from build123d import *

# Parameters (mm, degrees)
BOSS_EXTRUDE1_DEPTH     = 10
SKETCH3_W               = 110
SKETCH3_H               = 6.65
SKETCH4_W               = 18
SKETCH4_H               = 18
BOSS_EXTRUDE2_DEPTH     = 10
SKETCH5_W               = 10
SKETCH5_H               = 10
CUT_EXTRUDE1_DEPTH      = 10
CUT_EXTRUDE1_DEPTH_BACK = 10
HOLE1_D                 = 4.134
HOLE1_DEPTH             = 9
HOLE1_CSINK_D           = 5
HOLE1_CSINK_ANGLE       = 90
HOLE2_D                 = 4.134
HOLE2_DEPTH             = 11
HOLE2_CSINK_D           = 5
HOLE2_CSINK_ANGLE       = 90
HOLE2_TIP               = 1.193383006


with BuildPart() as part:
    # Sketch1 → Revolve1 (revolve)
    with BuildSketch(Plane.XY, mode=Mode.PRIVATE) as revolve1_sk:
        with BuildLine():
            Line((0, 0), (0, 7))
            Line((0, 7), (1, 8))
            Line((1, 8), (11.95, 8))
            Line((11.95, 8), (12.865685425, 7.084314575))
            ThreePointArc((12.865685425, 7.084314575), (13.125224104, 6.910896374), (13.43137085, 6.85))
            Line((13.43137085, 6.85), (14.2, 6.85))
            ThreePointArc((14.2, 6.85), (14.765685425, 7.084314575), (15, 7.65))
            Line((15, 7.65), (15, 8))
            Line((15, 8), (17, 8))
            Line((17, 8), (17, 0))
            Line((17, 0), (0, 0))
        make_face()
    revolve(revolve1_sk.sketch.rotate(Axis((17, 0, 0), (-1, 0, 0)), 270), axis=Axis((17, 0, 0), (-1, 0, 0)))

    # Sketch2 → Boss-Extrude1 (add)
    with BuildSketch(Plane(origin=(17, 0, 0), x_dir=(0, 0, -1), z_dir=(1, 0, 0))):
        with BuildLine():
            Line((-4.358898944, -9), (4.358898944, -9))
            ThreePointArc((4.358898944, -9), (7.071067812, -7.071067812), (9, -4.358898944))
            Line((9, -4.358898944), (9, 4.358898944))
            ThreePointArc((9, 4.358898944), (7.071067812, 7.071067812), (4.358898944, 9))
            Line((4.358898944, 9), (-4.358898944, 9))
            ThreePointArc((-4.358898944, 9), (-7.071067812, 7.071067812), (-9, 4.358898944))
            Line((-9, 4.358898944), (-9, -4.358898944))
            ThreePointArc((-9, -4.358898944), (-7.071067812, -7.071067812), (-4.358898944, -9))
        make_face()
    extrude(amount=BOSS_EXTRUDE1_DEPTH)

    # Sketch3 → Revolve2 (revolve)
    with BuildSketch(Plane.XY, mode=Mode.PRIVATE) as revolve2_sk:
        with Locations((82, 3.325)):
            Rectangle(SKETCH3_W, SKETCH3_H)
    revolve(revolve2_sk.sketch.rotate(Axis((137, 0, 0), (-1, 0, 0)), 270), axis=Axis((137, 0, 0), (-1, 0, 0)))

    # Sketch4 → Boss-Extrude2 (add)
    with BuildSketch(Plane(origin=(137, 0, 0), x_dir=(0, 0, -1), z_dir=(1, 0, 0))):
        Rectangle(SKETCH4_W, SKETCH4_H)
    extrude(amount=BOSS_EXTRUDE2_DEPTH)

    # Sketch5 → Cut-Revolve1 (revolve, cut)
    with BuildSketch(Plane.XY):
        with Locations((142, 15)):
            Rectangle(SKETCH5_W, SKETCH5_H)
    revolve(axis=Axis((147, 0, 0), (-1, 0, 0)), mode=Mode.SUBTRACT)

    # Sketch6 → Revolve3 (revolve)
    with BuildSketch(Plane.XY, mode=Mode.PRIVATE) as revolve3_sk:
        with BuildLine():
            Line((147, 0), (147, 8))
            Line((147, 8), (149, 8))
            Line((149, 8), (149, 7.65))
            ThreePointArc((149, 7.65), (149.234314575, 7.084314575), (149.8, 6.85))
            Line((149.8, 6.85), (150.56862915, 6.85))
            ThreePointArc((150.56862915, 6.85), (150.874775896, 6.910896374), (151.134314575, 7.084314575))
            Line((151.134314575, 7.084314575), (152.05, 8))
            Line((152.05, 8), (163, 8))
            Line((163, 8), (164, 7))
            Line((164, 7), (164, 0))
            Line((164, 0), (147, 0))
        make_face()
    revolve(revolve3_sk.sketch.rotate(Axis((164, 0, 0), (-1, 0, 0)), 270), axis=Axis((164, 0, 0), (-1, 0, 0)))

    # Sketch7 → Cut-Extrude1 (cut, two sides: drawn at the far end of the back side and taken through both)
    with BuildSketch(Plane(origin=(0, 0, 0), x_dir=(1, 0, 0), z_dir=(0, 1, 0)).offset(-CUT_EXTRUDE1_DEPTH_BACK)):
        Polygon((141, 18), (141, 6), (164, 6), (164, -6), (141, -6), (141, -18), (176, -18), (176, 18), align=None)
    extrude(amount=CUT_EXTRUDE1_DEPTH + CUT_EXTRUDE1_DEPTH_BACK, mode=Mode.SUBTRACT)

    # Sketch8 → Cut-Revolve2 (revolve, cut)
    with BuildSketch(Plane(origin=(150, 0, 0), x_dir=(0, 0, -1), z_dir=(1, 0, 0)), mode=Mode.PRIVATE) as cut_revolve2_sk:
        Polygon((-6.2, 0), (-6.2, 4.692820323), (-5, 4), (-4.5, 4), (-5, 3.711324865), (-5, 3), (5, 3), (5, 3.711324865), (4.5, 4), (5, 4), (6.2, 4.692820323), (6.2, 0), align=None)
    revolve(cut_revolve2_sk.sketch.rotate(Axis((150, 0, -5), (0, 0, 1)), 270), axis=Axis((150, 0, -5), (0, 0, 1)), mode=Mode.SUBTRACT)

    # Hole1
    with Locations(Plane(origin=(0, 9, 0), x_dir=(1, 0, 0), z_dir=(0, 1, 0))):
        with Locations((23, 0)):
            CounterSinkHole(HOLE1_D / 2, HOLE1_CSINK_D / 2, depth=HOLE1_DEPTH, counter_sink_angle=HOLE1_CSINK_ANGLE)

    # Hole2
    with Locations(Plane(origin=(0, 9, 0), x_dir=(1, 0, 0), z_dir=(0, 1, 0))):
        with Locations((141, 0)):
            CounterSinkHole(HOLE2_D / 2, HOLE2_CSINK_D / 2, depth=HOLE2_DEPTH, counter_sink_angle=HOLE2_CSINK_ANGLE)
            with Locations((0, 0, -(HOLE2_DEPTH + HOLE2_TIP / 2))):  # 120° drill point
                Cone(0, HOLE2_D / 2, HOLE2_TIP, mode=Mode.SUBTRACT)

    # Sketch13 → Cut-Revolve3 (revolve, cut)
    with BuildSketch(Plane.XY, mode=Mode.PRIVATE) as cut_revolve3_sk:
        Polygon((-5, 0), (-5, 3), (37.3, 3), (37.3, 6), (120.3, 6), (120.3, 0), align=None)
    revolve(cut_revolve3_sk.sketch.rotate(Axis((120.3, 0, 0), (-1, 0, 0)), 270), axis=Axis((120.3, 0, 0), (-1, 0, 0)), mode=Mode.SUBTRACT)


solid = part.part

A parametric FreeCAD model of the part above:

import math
import FreeCAD as App
import Part
import Sketcher
from FreeCAD import Vector
Q = App.Units.Quantity

doc = App.newDocument("Part")
body = doc.addObject("PartDesign::Body", "Body")

# Sketch on XY plane
sketch1 = body.newObject("Sketcher::SketchObject", "Sketch")
sketch1.AttachmentSupport = (doc.getObject("XY_Plane"), [""])
sketch1.MapMode = "FlatFace"
sketch1.addGeometry([
    Part.LineSegment(Vector(0, 7, 0), Vector(0, 0, 0)),  # 0
    Part.LineSegment(Vector(0, 0, 0), Vector(17, 0, 0)),  # 1
    Part.LineSegment(Vector(17, 0, 0), Vector(17, 8, 0)),  # 2
    Part.LineSegment(Vector(17, 8, 0), Vector(15, 8, 0)),  # 3
    Part.LineSegment(Vector(15, 8, 0), Vector(15, 7.65, 0)),  # 4
    Part.ArcOfCircle(Part.Circle(Vector(14.2, 7.65, 0), Vector(0, 0, 1), 0.8), math.radians(-90), math.radians(0)),  # 5
    Part.LineSegment(Vector(14.2, 6.85, 0), Vector(13.431371, 6.85, 0)),  # 6
    Part.ArcOfCircle(Part.Circle(Vector(13.431371, 7.65, 0), Vector(0, 0, 1), 0.8), math.radians(-135), math.radians(-90)),  # 7
    Part.LineSegment(Vector(12.865685, 7.084315, 0), Vector(11.95, 8, 0)),  # 8
    Part.LineSegment(Vector(11.95, 8, 0), Vector(1, 8, 0)),  # 9
    Part.LineSegment(Vector(1, 8, 0), Vector(0, 7, 0)),  # 10
], False)
sketch1.addConstraint([
    Sketcher.Constraint("Coincident", 0, 2, 1, 1),
    Sketcher.Constraint("Coincident", 1, 2, 2, 1),
    Sketcher.Constraint("Coincident", 2, 2, 3, 1),
    Sketcher.Constraint("Coincident", 3, 2, 4, 1),
    Sketcher.Constraint("Tangent", 4, 2, 5, 2),
    Sketcher.Constraint("Tangent", 5, 1, 6, 1),
    Sketcher.Constraint("Tangent", 6, 2, 7, 2),
    Sketcher.Constraint("Tangent", 7, 1, 8, 1),
    Sketcher.Constraint("Coincident", 8, 2, 9, 1),
    Sketcher.Constraint("Coincident", 9, 2, 10, 1),
    Sketcher.Constraint("Coincident", 10, 2, 0, 1),
    Sketcher.Constraint("Vertical", 0),
    Sketcher.Constraint("Horizontal", 1),
    Sketcher.Constraint("Vertical", 2),
    Sketcher.Constraint("Horizontal", 3),
    Sketcher.Constraint("Vertical", 4),
    Sketcher.Constraint("Horizontal", 6),
    Sketcher.Constraint("Horizontal", 9),
    Sketcher.Constraint("Coincident", 0, 2, -1, 1),
    Sketcher.Constraint("Equal", 5, 7),
    Sketcher.Constraint("Perpendicular", 8, 10),
    Sketcher.Constraint("Horizontal", 3, 2, 8, 2),
    Sketcher.Constraint("Radius", 5, 0.8),
    Sketcher.Constraint("DistanceX", 1, 1, 1, 2, 17.0),
    Sketcher.Constraint("DistanceX", 3, 2, 3, 1, 2.0),
    Sketcher.Constraint("DistanceY", 0, 2, 0, 1, 7.0),
    Sketcher.Constraint("DistanceY", 2, 1, 2, 2, 8.0),
    Sketcher.Constraint("Angle", 8, Q("135 deg")),
    Sketcher.Constraint("DistanceX", 9, 2, 9, 1, 10.95),
    Sketcher.Constraint("DistanceY", 4, 2, 4, 1, 0.35),
])
revolution = body.newObject("PartDesign::Revolution", "Revolution")
revolution.Profile = sketch1
revolution.ReferenceAxis = (sketch1, ["H_Axis"])
revolution.Angle = 360

# Sketch on YZ plane
sketch2 = body.newObject("Sketcher::SketchObject", "Sketch001")
sketch2.AttachmentSupport = (doc.getObject("YZ_Plane"), [""])
sketch2.MapMode = "FlatFace"
sketch2.AttachmentOffset = App.Placement(Vector(0, 0, 17), App.Rotation())
sketch2.addGeometry([
    Part.LineSegment(Vector(-9, 4.358899, 0), Vector(-9, -4.358899, 0)),  # 0
    Part.ArcOfCircle(Part.Circle(Vector(0, 0, 0), Vector(0, 0, 1), 10), math.radians(-154.158067), math.radians(-115.841933)),  # 1
    Part.LineSegment(Vector(-4.358899, -9, 0), Vector(4.358899, -9, 0)),  # 2
    Part.ArcOfCircle(Part.Circle(Vector(0, 0, 0), Vector(0, 0, 1), 10), math.radians(-64.158067), math.radians(-25.841933)),  # 3
    Part.LineSegment(Vector(9, -4.358899, 0), Vector(9, 4.358899, 0)),  # 4
    Part.ArcOfCircle(Part.Circle(Vector(0, 0, 0), Vector(0, 0, 1), 10), math.radians(25.841933), math.radians(64.158067)),  # 5
    Part.LineSegment(Vector(4.358899, 9, 0), Vector(-4.358899, 9, 0)),  # 6
    Part.ArcOfCircle(Part.Circle(Vector(0, 0, 0), Vector(0, 0, 1), 10), math.radians(115.841933), math.radians(154.158067)),  # 7
], False)
sketch2.addConstraint([
    Sketcher.Constraint("Coincident", 0, 2, 1, 1),
    Sketcher.Constraint("Coincident", 1, 2, 2, 1),
    Sketcher.Constraint("Coincident", 2, 2, 3, 1),
    Sketcher.Constraint("Coincident", 3, 2, 4, 1),
    Sketcher.Constraint("Coincident", 4, 2, 5, 1),
    Sketcher.Constraint("Coincident", 5, 2, 6, 1),
    Sketcher.Constraint("Coincident", 6, 2, 7, 1),
    Sketcher.Constraint("Coincident", 7, 2, 0, 1),
    Sketcher.Constraint("Vertical", 0),
    Sketcher.Constraint("Horizontal", 2),
    Sketcher.Constraint("Vertical", 4),
    Sketcher.Constraint("Horizontal", 6),
    Sketcher.Constraint("Coincident", 1, 3, -1, 1),
    Sketcher.Constraint("Coincident", 3, 3, -1, 1),
    Sketcher.Constraint("Coincident", 5, 3, -1, 1),
    Sketcher.Constraint("Coincident", 7, 3, -1, 1),
    Sketcher.Constraint("Equal", 1, 3),
    Sketcher.Constraint("Equal", 3, 5),
    Sketcher.Constraint("Equal", 5, 7),
    Sketcher.Constraint("Horizontal", 0, 2, 3, 2),
    Sketcher.Constraint("Vertical", 2, 2, 5, 2),
    Sketcher.Constraint("Equal", 6, 0),
    Sketcher.Constraint("Radius", 1, 10.0),
    Sketcher.Constraint("DistanceX", 0, 2, -1, 1, 9.0),
])
pad1 = body.newObject("PartDesign::Pad", "Pad")
pad1.Profile = sketch2
pad1.Length = 10

# Sketch on XY plane
sketch3 = body.newObject("Sketcher::SketchObject", "Sketch002")
sketch3.AttachmentSupport = (doc.getObject("XY_Plane"), [""])
sketch3.MapMode = "FlatFace"
sketch3.addGeometry([
    Part.LineSegment(Vector(27, 6.65, 0), Vector(27, 0, 0)),
    Part.LineSegment(Vector(27, 0, 0), Vector(137, 0, 0)),
    Part.LineSegment(Vector(137, 0, 0), Vector(137, 6.65, 0)),
    Part.LineSegment(Vector(137, 6.65, 0), Vector(27, 6.65, 0)),
], False)
sketch3.addConstraint([
    Sketcher.Constraint("Coincident", 0, 2, 1, 1),
    Sketcher.Constraint("Coincident", 1, 2, 2, 1),
    Sketcher.Constraint("Coincident", 2, 2, 3, 1),
    Sketcher.Constraint("Coincident", 3, 2, 0, 1),
    Sketcher.Constraint("Vertical", 0),
    Sketcher.Constraint("Horizontal", 1),
    Sketcher.Constraint("Vertical", 2),
    Sketcher.Constraint("Horizontal", 3),
    Sketcher.Constraint("PointOnObject", 0, 2, -1),
    Sketcher.Constraint("DistanceX", 1, 1, 1, 2, 110.0),
    Sketcher.Constraint("DistanceX", -1, 1, 0, 2, 27.0),
    Sketcher.Constraint("DistanceY", 0, 2, 0, 1, 6.65),
])
revolution2 = body.newObject("PartDesign::Revolution", "Revolution001")
revolution2.Profile = sketch3
revolution2.ReferenceAxis = (sketch3, ["H_Axis"])
revolution2.Angle = 360

# Sketch on YZ plane
sketch4 = body.newObject("Sketcher::SketchObject", "Sketch003")
sketch4.AttachmentSupport = (doc.getObject("YZ_Plane"), [""])
sketch4.MapMode = "FlatFace"
sketch4.AttachmentOffset = App.Placement(Vector(0, 0, 137), App.Rotation())
sketch4.addGeometry([
    Part.LineSegment(Vector(9, 9, 0), Vector(-9, 9, 0)),
    Part.LineSegment(Vector(-9, 9, 0), Vector(-9, -9, 0)),
    Part.LineSegment(Vector(-9, -9, 0), Vector(9, -9, 0)),
    Part.LineSegment(Vector(9, -9, 0), Vector(9, 9, 0)),
], False)
sketch4.addConstraint([
    Sketcher.Constraint("Coincident", 0, 2, 1, 1),
    Sketcher.Constraint("Coincident", 1, 2, 2, 1),
    Sketcher.Constraint("Coincident", 2, 2, 3, 1),
    Sketcher.Constraint("Coincident", 3, 2, 0, 1),
    Sketcher.Constraint("Horizontal", 0),
    Sketcher.Constraint("Vertical", 1),
    Sketcher.Constraint("Horizontal", 2),
    Sketcher.Constraint("Vertical", 3),
    Sketcher.Constraint("Symmetric", 0, 2, 2, 2, -1, 1),
    Sketcher.Constraint("Equal", 2, 1),
    Sketcher.Constraint("DistanceX", 0, 2, 0, 1, 18.0),
])
pad2 = body.newObject("PartDesign::Pad", "Pad001")
pad2.Profile = sketch4
pad2.Length = 10

# Sketch on XY plane
sketch5 = body.newObject("Sketcher::SketchObject", "Sketch004")
sketch5.AttachmentSupport = (doc.getObject("XY_Plane"), [""])
sketch5.MapMode = "FlatFace"
sketch5.addGeometry([
    Part.LineSegment(Vector(137, 20, 0), Vector(137, 10, 0)),
    Part.LineSegment(Vector(137, 10, 0), Vector(147, 10, 0)),
    Part.LineSegment(Vector(147, 10, 0), Vector(147, 20, 0)),
    Part.LineSegment(Vector(147, 20, 0), Vector(137, 20, 0)),
], False)
sketch5.addConstraint([
    Sketcher.Constraint("Coincident", 0, 2, 1, 1),
    Sketcher.Constraint("Coincident", 1, 2, 2, 1),
    Sketcher.Constraint("Coincident", 2, 2, 3, 1),
    Sketcher.Constraint("Coincident", 3, 2, 0, 1),
    Sketcher.Constraint("Vertical", 0),
    Sketcher.Constraint("Horizontal", 1),
    Sketcher.Constraint("Vertical", 2),
    Sketcher.Constraint("Horizontal", 3),
    Sketcher.Constraint("Equal", 3, 0),
    Sketcher.Constraint("DistanceX", 1, 1, 1, 2, 10.0),
    Sketcher.Constraint("DistanceX", -1, 1, 0, 2, 137.0),
    Sketcher.Constraint("DistanceY", -1, 1, 0, 2, 10.0),
])
groove = body.newObject("PartDesign::Groove", "Groove")
groove.Profile = sketch5
groove.ReferenceAxis = (sketch5, ["H_Axis"])
groove.Angle = 360

# Sketch on XY plane
sketch6 = body.newObject("Sketcher::SketchObject", "Sketch005")
sketch6.AttachmentSupport = (doc.getObject("XY_Plane"), [""])
sketch6.MapMode = "FlatFace"
sketch6.addGeometry([
    Part.LineSegment(Vector(147, 8, 0), Vector(147, 0, 0)),  # 0
    Part.LineSegment(Vector(147, 0, 0), Vector(164, 0, 0)),  # 1
    Part.LineSegment(Vector(164, 0, 0), Vector(164, 7, 0)),  # 2
    Part.LineSegment(Vector(164, 7, 0), Vector(163, 8, 0)),  # 3
    Part.LineSegment(Vector(163, 8, 0), Vector(152.05, 8, 0)),  # 4
    Part.LineSegment(Vector(152.05, 8, 0), Vector(151.134315, 7.084315, 0)),  # 5
    Part.ArcOfCircle(Part.Circle(Vector(150.568629, 7.65, 0), Vector(0, 0, 1), 0.8), math.radians(-90), math.radians(-45)),  # 6
    Part.LineSegment(Vector(150.568629, 6.85, 0), Vector(149.8, 6.85, 0)),  # 7
    Part.ArcOfCircle(Part.Circle(Vector(149.8, 7.65, 0), Vector(0, 0, 1), 0.8), math.radians(180), math.radians(270)),  # 8
    Part.LineSegment(Vector(149, 7.65, 0), Vector(149, 8, 0)),  # 9
    Part.LineSegment(Vector(149, 8, 0), Vector(147, 8, 0)),  # 10
], False)
sketch6.addConstraint([
    Sketcher.Constraint("Coincident", 0, 2, 1, 1),
    Sketcher.Constraint("Coincident", 1, 2, 2, 1),
    Sketcher.Constraint("Coincident", 2, 2, 3, 1),
    Sketcher.Constraint("Coincident", 3, 2, 4, 1),
    Sketcher.Constraint("Coincident", 4, 2, 5, 1),
    Sketcher.Constraint("Tangent", 5, 2, 6, 2),
    Sketcher.Constraint("Tangent", 6, 1, 7, 1),
    Sketcher.Constraint("Tangent", 7, 2, 8, 2),
    Sketcher.Constraint("Tangent", 8, 1, 9, 1),
    Sketcher.Constraint("Coincident", 9, 2, 10, 1),
    Sketcher.Constraint("Coincident", 10, 2, 0, 1),
    Sketcher.Constraint("Vertical", 0),
    Sketcher.Constraint("Horizontal", 1),
    Sketcher.Constraint("Vertical", 2),
    Sketcher.Constraint("Horizontal", 4),
    Sketcher.Constraint("Horizontal", 7),
    Sketcher.Constraint("Vertical", 9),
    Sketcher.Constraint("Horizontal", 10),
    Sketcher.Constraint("Equal", 6, 8),
    Sketcher.Constraint("PointOnObject", 0, 2, -1),
    Sketcher.Constraint("Perpendicular", 3, 5),
    Sketcher.Constraint("Horizontal", 4, 2, 9, 2),
    Sketcher.Constraint("Radius", 6, 0.8),
    Sketcher.Constraint("DistanceX", 1, 1, 1, 2, 17.0),
    Sketcher.Constraint("DistanceX", 10, 2, 10, 1, 2.0),
    Sketcher.Constraint("DistanceY", 0, 2, 0, 1, 8.0),
    Sketcher.Constraint("DistanceY", 2, 1, 2, 2, 7.0),
    Sketcher.Constraint("Angle", 3, Q("135 deg")),
    Sketcher.Constraint("DistanceX", -1, 1, 0, 2, 147.0),
    Sketcher.Constraint("DistanceX", 4, 2, 4, 1, 10.95),
    Sketcher.Constraint("DistanceY", 9, 1, 9, 2, 0.35),
])
revolution3 = body.newObject("PartDesign::Revolution", "Revolution002")
revolution3.Profile = sketch6
revolution3.ReferenceAxis = (sketch6, ["H_Axis"])
revolution3.Angle = 360

# Sketch on XZ plane
sketch7 = body.newObject("Sketcher::SketchObject", "Sketch006")
sketch7.AttachmentSupport = (doc.getObject("XZ_Plane"), [""])
sketch7.MapMode = "FlatFace"
sketch7.addGeometry([
    Part.LineSegment(Vector(141, -18, 0), Vector(141, -6, 0)),  # 0
    Part.LineSegment(Vector(141, -6, 0), Vector(164, -6, 0)),  # 1
    Part.LineSegment(Vector(164, -6, 0), Vector(164, 6, 0)),  # 2
    Part.LineSegment(Vector(164, 6, 0), Vector(141, 6, 0)),  # 3
    Part.LineSegment(Vector(141, 6, 0), Vector(141, 18, 0)),  # 4
    Part.LineSegment(Vector(141, 18, 0), Vector(176, 18, 0)),  # 5
    Part.LineSegment(Vector(176, 18, 0), Vector(176, -18, 0)),  # 6
    Part.LineSegment(Vector(176, -18, 0), Vector(141, -18, 0)),  # 7
], False)
sketch7.addConstraint([
    Sketcher.Constraint("Coincident", 0, 2, 1, 1),
    Sketcher.Constraint("Coincident", 1, 2, 2, 1),
    Sketcher.Constraint("Coincident", 2, 2, 3, 1),
    Sketcher.Constraint("Coincident", 3, 2, 4, 1),
    Sketcher.Constraint("Coincident", 4, 2, 5, 1),
    Sketcher.Constraint("Coincident", 5, 2, 6, 1),
    Sketcher.Constraint("Coincident", 6, 2, 7, 1),
    Sketcher.Constraint("Coincident", 7, 2, 0, 1),
    Sketcher.Constraint("Vertical", 0),
    Sketcher.Constraint("Horizontal", 1),
    Sketcher.Constraint("Vertical", 2),
    Sketcher.Constraint("Horizontal", 3),
    Sketcher.Constraint("Vertical", 4),
    Sketcher.Constraint("Horizontal", 5),
    Sketcher.Constraint("Vertical", 6),
    Sketcher.Constraint("Horizontal", 7),
    Sketcher.Constraint("Symmetric", 0, 2, 3, 2, -1),
    Sketcher.Constraint("Equal", 0, 2),
    Sketcher.Constraint("Equal", 2, 4),
    Sketcher.Constraint("DistanceX", 1, 1, 1, 2, 23.0),
    Sketcher.Constraint("DistanceX", 5, 1, 5, 2, 35.0),
    Sketcher.Constraint("DistanceY", 0, 1, 0, 2, 12.0),
    Sketcher.Constraint("DistanceX", -1, 1, 0, 2, 141.0),
])
pocket1 = body.newObject("PartDesign::Pocket", "Pocket")
pocket1.Profile = sketch7
pocket1.Type = "ThroughAll"
pocket1.Midplane = True

# Sketch on YZ plane
sketch8 = body.newObject("Sketcher::SketchObject", "Sketch007")
sketch8.AttachmentSupport = (doc.getObject("YZ_Plane"), [""])
sketch8.MapMode = "FlatFace"
sketch8.AttachmentOffset = App.Placement(Vector(0, 0, 150), App.Rotation())
sketch8.addGeometry([
    Part.LineSegment(Vector(4.69282, 6.2, 0), Vector(0, 6.2, 0)),  # 0
    Part.LineSegment(Vector(0, 6.2, 0), Vector(0, -6.2, 0)),  # 1
    Part.LineSegment(Vector(0, -6.2, 0), Vector(4.69282, -6.2, 0)),  # 2
    Part.LineSegment(Vector(4.69282, -6.2, 0), Vector(4, -5, 0)),  # 3
    Part.LineSegment(Vector(4, -5, 0), Vector(4, -4.5, 0)),  # 4
    Part.LineSegment(Vector(4, -4.5, 0), Vector(3.711325, -5, 0)),  # 5
    Part.LineSegment(Vector(3.711325, -5, 0), Vector(3, -5, 0)),  # 6
    Part.LineSegment(Vector(3, -5, 0), Vector(3, 5, 0)),  # 7
    Part.LineSegment(Vector(3, 5, 0), Vector(3.711325, 5, 0)),  # 8
    Part.LineSegment(Vector(3.711325, 5, 0), Vector(4, 4.5, 0)),  # 9
    Part.LineSegment(Vector(4, 4.5, 0), Vector(4, 5, 0)),  # 10
    Part.LineSegment(Vector(4, 5, 0), Vector(4.69282, 6.2, 0)),  # 11
], False)
sketch8.addConstraint([
    Sketcher.Constraint("Coincident", 0, 2, 1, 1),
    Sketcher.Constraint("Coincident", 1, 2, 2, 1),
    Sketcher.Constraint("Coincident", 2, 2, 3, 1),
    Sketcher.Constraint("Coincident", 3, 2, 4, 1),
    Sketcher.Constraint("Coincident", 4, 2, 5, 1),
    Sketcher.Constraint("Coincident", 5, 2, 6, 1),
    Sketcher.Constraint("Coincident", 6, 2, 7, 1),
    Sketcher.Constraint("Coincident", 7, 2, 8, 1),
    Sketcher.Constraint("Coincident", 8, 2, 9, 1),
    Sketcher.Constraint("Coincident", 9, 2, 10, 1),
    Sketcher.Constraint("Coincident", 10, 2, 11, 1),
    Sketcher.Constraint("Coincident", 11, 2, 0, 1),
    Sketcher.Constraint("Horizontal", 0),
    Sketcher.Constraint("Vertical", 1),
    Sketcher.Constraint("Horizontal", 2),
    Sketcher.Constraint("Vertical", 4),
    Sketcher.Constraint("Horizontal", 6),
    Sketcher.Constraint("Vertical", 7),
    Sketcher.Constraint("Horizontal", 8),
    Sketcher.Constraint("Vertical", 10),
    Sketcher.Constraint("Symmetric", 0, 2, 1, 2, -1, 1),
    Sketcher.Constraint("Symmetric", 5, 2, 8, 2, -1),
    Sketcher.Constraint("Symmetric", 4, 2, 9, 2, -1),
    Sketcher.Constraint("Parallel", 3, 9),
    Sketcher.Constraint("Parallel", 5, 11),
    Sketcher.Constraint("Horizontal", 3, 2, 5, 2),
    Sketcher.Constraint("Horizontal", 8, 2, 10, 2),
    Sketcher.Constraint("DistanceY", 7, 1, 7, 2, 10.0),
    Sketcher.Constraint("Angle", 3, Q("120 deg")),
    Sketcher.Constraint("DistanceY", 1, 2, 1, 1, 12.4),
    Sketcher.Constraint("DistanceY", 4, 1, 4, 2, 0.5),
    Sketcher.Constraint("DistanceX", -1, 1, 3, 2, 4.0),
    Sketcher.Constraint("DistanceX", -1, 1, 6, 2, 3.0),
])
groove2 = body.newObject("PartDesign::Groove", "Groove001")
groove2.Profile = sketch8
groove2.ReferenceAxis = (sketch8, ["V_Axis"])
groove2.Angle = 360

# Sketch on XZ plane
sketch9 = body.newObject("Sketcher::SketchObject", "Sketch008")
sketch9.AttachmentSupport = (doc.getObject("XZ_Plane"), [""])
sketch9.MapMode = "FlatFace"
sketch9.AttachmentOffset = App.Placement(Vector(0, 0, -9), App.Rotation())
sketch9.addGeometry(Part.Circle(Vector(23, 0, 0), Vector(0, 0, 1), 2.067), False)
sketch9.addConstraint([
    Sketcher.Constraint("PointOnObject", 0, 3, -1),
    Sketcher.Constraint("Diameter", 0, 4.134),
    Sketcher.Constraint("DistanceX", -1, 1, 0, 3, 23.0),
])
doc.recompute()
hole = body.newObject("PartDesign::Hole", "Hole")
hole.Profile = sketch9
hole.ThreadType = "None"
hole.Diameter = 4.134
hole.DepthType = "Dimension"
hole.Depth = 9
hole.DrillPoint = "Flat"
hole.HoleCutType = "Countersink"
hole.HoleCutDiameter = 5
hole.HoleCutCountersinkAngle = 90
hole.Reversed = True

# Sketch on XZ plane
sketch10 = body.newObject("Sketcher::SketchObject", "Sketch009")
sketch10.AttachmentSupport = (doc.getObject("XZ_Plane"), [""])
sketch10.MapMode = "FlatFace"
sketch10.AttachmentOffset = App.Placement(Vector(0, 0, -9), App.Rotation())
sketch10.addGeometry(Part.Circle(Vector(141, 0, 0), Vector(0, 0, 1), 2.067), False)
sketch10.addConstraint([
    Sketcher.Constraint("PointOnObject", 0, 3, -1),
    Sketcher.Constraint("Diameter", 0, 4.134),
    Sketcher.Constraint("DistanceX", -1, 1, 0, 3, 141.0),
])
doc.recompute()
hole2 = body.newObject("PartDesign::Hole", "Hole001")
hole2.Profile = sketch10
hole2.ThreadType = "None"
hole2.Diameter = 4.134
hole2.DepthType = "Dimension"
hole2.Depth = 11
hole2.DrillPoint = "Angled"
hole2.DrillPointAngle = 120
hole2.HoleCutType = "Countersink"
hole2.HoleCutDiameter = 5
hole2.HoleCutCountersinkAngle = 90
hole2.Reversed = True

# Sketch on XY plane
sketch11 = body.newObject("Sketcher::SketchObject", "Sketch010")
sketch11.AttachmentSupport = (doc.getObject("XY_Plane"), [""])
sketch11.MapMode = "FlatFace"
sketch11.addGeometry([
    Part.LineSegment(Vector(-5, 3, 0), Vector(-5, 0, 0)),  # 0
    Part.LineSegment(Vector(-5, 0, 0), Vector(120.3, 0, 0)),  # 1
    Part.LineSegment(Vector(120.3, 0, 0), Vector(120.3, 6, 0)),  # 2
    Part.LineSegment(Vector(120.3, 6, 0), Vector(37.3, 6, 0)),  # 3
    Part.LineSegment(Vector(37.3, 6, 0), Vector(37.3, 3, 0)),  # 4
    Part.LineSegment(Vector(37.3, 3, 0), Vector(-5, 3, 0)),  # 5
], False)
sketch11.addConstraint([
    Sketcher.Constraint("Coincident", 0, 2, 1, 1),
    Sketcher.Constraint("Coincident", 1, 2, 2, 1),
    Sketcher.Constraint("Coincident", 2, 2, 3, 1),
    Sketcher.Constraint("Coincident", 3, 2, 4, 1),
    Sketcher.Constraint("Coincident", 4, 2, 5, 1),
    Sketcher.Constraint("Coincident", 5, 2, 0, 1),
    Sketcher.Constraint("Vertical", 0),
    Sketcher.Constraint("Horizontal", 1),
    Sketcher.Constraint("Vertical", 2),
    Sketcher.Constraint("Horizontal", 3),
    Sketcher.Constraint("Vertical", 4),
    Sketcher.Constraint("Horizontal", 5),
    Sketcher.Constraint("PointOnObject", 0, 2, -1),
    Sketcher.Constraint("Equal", 0, 4),
    Sketcher.Constraint("DistanceX", 3, 2, 3, 1, 83.0),
    Sketcher.Constraint("DistanceY", 0, 2, 0, 1, 3.0),
    Sketcher.Constraint("DistanceX", 1, 1, 1, 2, 125.3),
    Sketcher.Constraint("DistanceX", 0, 2, -1, 1, 5.0),
])
groove3 = body.newObject("PartDesign::Groove", "Groove002")
groove3.Profile = sketch11
groove3.ReferenceAxis = (sketch11, ["H_Axis"])
groove3.Angle = 360

doc.recompute()
